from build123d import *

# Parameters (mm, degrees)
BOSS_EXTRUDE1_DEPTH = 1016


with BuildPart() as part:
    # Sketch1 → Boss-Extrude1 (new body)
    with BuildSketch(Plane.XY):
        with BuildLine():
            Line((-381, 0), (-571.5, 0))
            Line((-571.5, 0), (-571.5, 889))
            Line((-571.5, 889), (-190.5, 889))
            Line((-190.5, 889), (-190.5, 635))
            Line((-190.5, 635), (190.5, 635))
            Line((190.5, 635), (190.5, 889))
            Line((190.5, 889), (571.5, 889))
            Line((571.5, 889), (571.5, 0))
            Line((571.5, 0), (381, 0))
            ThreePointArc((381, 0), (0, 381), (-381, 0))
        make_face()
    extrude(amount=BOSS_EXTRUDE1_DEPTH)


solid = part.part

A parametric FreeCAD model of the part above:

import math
import FreeCAD as App
import Part
import Sketcher

V = App.Vector
Q = App.Units.Quantity

doc = App.newDocument("Part")
body = doc.addObject("PartDesign::Body", "Body")

# Sketch on XY plane
sketch1 = body.newObject("Sketcher::SketchObject", "Sketch")
sketch1.AttachmentSupport = (doc.getObject("XY_Plane"), [""])
sketch1.MapMode = "FlatFace"
sketch1.addGeometry([
    Part.LineSegment(V(-571.5, 0, 0), V(-381, 0, 0)),  # 0
    Part.ArcOfCircle(Part.Circle(V(0, 0, 0), V(0, 0, 1), 381), math.radians(0), math.radians(180)),  # 1
    Part.LineSegment(V(381, 0, 0), V(571.5, 0, 0)),  # 2
    Part.LineSegment(V(571.5, 0, 0), V(571.5, 889, 0)),  # 3
    Part.LineSegment(V(571.5, 889, 0), V(190.5, 889, 0)),  # 4
    Part.LineSegment(V(190.5, 889, 0), V(190.5, 635, 0)),  # 5
    Part.LineSegment(V(190.5, 635, 0), V(-190.5, 635, 0)),  # 6
    Part.LineSegment(V(-190.5, 635, 0), V(-190.5, 889, 0)),  # 7
    Part.LineSegment(V(-190.5, 889, 0), V(-571.5, 889, 0)),  # 8
    Part.LineSegment(V(-571.5, 889, 0), V(-571.5, 0, 0)),  # 9
], False)
sketch1.addConstraint([
    Sketcher.Constraint("Coincident", 0, 2, 1, 2),
    Sketcher.Constraint("Coincident", 1, 1, 2, 1),
    Sketcher.Constraint("Coincident", 2, 2, 3, 1),
    Sketcher.Constraint("Coincident", 3, 2, 4, 1),
    Sketcher.Constraint("Coincident", 4, 2, 5, 1),
    Sketcher.Constraint("Coincident", 5, 2, 6, 1),
    Sketcher.Constraint("Coincident", 6, 2, 7, 1),
    Sketcher.Constraint("Coincident", 7, 2, 8, 1),
    Sketcher.Constraint("Coincident", 8, 2, 9, 1),
    Sketcher.Constraint("Coincident", 9, 2, 0, 1),
    Sketcher.Constraint("Horizontal", 0),
    Sketcher.Constraint("Horizontal", 2),
    Sketcher.Constraint("Vertical", 3),
    Sketcher.Constraint("Horizontal", 4),
    Sketcher.Constraint("Vertical", 5),
    Sketcher.Constraint("Horizontal", 6),
    Sketcher.Constraint("Vertical", 7),
    Sketcher.Constraint("Horizontal", 8),
    Sketcher.Constraint("Vertical", 9),
    Sketcher.Constraint("Coincident", 1, 3, -1, 1),
    Sketcher.Constraint("Symmetric", 2, 2, 9, 2, -1, 1),
    Sketcher.Constraint("Symmetric", 4, 2, 7, 2, -2),
    Sketcher.Constraint("PointOnObject", 0, 2, -1),
    Sketcher.Constraint("Equal", 4, 6),
    Sketcher.Constraint("Radius", 1, Q("15 in")),
    Sketcher.Constraint("DistanceX", 4, 2, 4, 1, Q("15 in")),
    Sketcher.Constraint("DistanceY", 3, 1, 3, 2, Q("35 in")),
    Sketcher.Constraint("DistanceY", 5, 2, 5, 1, Q("10 in")),
])
pad1 = body.newObject("PartDesign::Pad", "Pad")
pad1.Profile = sketch1
pad1.Length = Q("40 in")

doc.recompute()
